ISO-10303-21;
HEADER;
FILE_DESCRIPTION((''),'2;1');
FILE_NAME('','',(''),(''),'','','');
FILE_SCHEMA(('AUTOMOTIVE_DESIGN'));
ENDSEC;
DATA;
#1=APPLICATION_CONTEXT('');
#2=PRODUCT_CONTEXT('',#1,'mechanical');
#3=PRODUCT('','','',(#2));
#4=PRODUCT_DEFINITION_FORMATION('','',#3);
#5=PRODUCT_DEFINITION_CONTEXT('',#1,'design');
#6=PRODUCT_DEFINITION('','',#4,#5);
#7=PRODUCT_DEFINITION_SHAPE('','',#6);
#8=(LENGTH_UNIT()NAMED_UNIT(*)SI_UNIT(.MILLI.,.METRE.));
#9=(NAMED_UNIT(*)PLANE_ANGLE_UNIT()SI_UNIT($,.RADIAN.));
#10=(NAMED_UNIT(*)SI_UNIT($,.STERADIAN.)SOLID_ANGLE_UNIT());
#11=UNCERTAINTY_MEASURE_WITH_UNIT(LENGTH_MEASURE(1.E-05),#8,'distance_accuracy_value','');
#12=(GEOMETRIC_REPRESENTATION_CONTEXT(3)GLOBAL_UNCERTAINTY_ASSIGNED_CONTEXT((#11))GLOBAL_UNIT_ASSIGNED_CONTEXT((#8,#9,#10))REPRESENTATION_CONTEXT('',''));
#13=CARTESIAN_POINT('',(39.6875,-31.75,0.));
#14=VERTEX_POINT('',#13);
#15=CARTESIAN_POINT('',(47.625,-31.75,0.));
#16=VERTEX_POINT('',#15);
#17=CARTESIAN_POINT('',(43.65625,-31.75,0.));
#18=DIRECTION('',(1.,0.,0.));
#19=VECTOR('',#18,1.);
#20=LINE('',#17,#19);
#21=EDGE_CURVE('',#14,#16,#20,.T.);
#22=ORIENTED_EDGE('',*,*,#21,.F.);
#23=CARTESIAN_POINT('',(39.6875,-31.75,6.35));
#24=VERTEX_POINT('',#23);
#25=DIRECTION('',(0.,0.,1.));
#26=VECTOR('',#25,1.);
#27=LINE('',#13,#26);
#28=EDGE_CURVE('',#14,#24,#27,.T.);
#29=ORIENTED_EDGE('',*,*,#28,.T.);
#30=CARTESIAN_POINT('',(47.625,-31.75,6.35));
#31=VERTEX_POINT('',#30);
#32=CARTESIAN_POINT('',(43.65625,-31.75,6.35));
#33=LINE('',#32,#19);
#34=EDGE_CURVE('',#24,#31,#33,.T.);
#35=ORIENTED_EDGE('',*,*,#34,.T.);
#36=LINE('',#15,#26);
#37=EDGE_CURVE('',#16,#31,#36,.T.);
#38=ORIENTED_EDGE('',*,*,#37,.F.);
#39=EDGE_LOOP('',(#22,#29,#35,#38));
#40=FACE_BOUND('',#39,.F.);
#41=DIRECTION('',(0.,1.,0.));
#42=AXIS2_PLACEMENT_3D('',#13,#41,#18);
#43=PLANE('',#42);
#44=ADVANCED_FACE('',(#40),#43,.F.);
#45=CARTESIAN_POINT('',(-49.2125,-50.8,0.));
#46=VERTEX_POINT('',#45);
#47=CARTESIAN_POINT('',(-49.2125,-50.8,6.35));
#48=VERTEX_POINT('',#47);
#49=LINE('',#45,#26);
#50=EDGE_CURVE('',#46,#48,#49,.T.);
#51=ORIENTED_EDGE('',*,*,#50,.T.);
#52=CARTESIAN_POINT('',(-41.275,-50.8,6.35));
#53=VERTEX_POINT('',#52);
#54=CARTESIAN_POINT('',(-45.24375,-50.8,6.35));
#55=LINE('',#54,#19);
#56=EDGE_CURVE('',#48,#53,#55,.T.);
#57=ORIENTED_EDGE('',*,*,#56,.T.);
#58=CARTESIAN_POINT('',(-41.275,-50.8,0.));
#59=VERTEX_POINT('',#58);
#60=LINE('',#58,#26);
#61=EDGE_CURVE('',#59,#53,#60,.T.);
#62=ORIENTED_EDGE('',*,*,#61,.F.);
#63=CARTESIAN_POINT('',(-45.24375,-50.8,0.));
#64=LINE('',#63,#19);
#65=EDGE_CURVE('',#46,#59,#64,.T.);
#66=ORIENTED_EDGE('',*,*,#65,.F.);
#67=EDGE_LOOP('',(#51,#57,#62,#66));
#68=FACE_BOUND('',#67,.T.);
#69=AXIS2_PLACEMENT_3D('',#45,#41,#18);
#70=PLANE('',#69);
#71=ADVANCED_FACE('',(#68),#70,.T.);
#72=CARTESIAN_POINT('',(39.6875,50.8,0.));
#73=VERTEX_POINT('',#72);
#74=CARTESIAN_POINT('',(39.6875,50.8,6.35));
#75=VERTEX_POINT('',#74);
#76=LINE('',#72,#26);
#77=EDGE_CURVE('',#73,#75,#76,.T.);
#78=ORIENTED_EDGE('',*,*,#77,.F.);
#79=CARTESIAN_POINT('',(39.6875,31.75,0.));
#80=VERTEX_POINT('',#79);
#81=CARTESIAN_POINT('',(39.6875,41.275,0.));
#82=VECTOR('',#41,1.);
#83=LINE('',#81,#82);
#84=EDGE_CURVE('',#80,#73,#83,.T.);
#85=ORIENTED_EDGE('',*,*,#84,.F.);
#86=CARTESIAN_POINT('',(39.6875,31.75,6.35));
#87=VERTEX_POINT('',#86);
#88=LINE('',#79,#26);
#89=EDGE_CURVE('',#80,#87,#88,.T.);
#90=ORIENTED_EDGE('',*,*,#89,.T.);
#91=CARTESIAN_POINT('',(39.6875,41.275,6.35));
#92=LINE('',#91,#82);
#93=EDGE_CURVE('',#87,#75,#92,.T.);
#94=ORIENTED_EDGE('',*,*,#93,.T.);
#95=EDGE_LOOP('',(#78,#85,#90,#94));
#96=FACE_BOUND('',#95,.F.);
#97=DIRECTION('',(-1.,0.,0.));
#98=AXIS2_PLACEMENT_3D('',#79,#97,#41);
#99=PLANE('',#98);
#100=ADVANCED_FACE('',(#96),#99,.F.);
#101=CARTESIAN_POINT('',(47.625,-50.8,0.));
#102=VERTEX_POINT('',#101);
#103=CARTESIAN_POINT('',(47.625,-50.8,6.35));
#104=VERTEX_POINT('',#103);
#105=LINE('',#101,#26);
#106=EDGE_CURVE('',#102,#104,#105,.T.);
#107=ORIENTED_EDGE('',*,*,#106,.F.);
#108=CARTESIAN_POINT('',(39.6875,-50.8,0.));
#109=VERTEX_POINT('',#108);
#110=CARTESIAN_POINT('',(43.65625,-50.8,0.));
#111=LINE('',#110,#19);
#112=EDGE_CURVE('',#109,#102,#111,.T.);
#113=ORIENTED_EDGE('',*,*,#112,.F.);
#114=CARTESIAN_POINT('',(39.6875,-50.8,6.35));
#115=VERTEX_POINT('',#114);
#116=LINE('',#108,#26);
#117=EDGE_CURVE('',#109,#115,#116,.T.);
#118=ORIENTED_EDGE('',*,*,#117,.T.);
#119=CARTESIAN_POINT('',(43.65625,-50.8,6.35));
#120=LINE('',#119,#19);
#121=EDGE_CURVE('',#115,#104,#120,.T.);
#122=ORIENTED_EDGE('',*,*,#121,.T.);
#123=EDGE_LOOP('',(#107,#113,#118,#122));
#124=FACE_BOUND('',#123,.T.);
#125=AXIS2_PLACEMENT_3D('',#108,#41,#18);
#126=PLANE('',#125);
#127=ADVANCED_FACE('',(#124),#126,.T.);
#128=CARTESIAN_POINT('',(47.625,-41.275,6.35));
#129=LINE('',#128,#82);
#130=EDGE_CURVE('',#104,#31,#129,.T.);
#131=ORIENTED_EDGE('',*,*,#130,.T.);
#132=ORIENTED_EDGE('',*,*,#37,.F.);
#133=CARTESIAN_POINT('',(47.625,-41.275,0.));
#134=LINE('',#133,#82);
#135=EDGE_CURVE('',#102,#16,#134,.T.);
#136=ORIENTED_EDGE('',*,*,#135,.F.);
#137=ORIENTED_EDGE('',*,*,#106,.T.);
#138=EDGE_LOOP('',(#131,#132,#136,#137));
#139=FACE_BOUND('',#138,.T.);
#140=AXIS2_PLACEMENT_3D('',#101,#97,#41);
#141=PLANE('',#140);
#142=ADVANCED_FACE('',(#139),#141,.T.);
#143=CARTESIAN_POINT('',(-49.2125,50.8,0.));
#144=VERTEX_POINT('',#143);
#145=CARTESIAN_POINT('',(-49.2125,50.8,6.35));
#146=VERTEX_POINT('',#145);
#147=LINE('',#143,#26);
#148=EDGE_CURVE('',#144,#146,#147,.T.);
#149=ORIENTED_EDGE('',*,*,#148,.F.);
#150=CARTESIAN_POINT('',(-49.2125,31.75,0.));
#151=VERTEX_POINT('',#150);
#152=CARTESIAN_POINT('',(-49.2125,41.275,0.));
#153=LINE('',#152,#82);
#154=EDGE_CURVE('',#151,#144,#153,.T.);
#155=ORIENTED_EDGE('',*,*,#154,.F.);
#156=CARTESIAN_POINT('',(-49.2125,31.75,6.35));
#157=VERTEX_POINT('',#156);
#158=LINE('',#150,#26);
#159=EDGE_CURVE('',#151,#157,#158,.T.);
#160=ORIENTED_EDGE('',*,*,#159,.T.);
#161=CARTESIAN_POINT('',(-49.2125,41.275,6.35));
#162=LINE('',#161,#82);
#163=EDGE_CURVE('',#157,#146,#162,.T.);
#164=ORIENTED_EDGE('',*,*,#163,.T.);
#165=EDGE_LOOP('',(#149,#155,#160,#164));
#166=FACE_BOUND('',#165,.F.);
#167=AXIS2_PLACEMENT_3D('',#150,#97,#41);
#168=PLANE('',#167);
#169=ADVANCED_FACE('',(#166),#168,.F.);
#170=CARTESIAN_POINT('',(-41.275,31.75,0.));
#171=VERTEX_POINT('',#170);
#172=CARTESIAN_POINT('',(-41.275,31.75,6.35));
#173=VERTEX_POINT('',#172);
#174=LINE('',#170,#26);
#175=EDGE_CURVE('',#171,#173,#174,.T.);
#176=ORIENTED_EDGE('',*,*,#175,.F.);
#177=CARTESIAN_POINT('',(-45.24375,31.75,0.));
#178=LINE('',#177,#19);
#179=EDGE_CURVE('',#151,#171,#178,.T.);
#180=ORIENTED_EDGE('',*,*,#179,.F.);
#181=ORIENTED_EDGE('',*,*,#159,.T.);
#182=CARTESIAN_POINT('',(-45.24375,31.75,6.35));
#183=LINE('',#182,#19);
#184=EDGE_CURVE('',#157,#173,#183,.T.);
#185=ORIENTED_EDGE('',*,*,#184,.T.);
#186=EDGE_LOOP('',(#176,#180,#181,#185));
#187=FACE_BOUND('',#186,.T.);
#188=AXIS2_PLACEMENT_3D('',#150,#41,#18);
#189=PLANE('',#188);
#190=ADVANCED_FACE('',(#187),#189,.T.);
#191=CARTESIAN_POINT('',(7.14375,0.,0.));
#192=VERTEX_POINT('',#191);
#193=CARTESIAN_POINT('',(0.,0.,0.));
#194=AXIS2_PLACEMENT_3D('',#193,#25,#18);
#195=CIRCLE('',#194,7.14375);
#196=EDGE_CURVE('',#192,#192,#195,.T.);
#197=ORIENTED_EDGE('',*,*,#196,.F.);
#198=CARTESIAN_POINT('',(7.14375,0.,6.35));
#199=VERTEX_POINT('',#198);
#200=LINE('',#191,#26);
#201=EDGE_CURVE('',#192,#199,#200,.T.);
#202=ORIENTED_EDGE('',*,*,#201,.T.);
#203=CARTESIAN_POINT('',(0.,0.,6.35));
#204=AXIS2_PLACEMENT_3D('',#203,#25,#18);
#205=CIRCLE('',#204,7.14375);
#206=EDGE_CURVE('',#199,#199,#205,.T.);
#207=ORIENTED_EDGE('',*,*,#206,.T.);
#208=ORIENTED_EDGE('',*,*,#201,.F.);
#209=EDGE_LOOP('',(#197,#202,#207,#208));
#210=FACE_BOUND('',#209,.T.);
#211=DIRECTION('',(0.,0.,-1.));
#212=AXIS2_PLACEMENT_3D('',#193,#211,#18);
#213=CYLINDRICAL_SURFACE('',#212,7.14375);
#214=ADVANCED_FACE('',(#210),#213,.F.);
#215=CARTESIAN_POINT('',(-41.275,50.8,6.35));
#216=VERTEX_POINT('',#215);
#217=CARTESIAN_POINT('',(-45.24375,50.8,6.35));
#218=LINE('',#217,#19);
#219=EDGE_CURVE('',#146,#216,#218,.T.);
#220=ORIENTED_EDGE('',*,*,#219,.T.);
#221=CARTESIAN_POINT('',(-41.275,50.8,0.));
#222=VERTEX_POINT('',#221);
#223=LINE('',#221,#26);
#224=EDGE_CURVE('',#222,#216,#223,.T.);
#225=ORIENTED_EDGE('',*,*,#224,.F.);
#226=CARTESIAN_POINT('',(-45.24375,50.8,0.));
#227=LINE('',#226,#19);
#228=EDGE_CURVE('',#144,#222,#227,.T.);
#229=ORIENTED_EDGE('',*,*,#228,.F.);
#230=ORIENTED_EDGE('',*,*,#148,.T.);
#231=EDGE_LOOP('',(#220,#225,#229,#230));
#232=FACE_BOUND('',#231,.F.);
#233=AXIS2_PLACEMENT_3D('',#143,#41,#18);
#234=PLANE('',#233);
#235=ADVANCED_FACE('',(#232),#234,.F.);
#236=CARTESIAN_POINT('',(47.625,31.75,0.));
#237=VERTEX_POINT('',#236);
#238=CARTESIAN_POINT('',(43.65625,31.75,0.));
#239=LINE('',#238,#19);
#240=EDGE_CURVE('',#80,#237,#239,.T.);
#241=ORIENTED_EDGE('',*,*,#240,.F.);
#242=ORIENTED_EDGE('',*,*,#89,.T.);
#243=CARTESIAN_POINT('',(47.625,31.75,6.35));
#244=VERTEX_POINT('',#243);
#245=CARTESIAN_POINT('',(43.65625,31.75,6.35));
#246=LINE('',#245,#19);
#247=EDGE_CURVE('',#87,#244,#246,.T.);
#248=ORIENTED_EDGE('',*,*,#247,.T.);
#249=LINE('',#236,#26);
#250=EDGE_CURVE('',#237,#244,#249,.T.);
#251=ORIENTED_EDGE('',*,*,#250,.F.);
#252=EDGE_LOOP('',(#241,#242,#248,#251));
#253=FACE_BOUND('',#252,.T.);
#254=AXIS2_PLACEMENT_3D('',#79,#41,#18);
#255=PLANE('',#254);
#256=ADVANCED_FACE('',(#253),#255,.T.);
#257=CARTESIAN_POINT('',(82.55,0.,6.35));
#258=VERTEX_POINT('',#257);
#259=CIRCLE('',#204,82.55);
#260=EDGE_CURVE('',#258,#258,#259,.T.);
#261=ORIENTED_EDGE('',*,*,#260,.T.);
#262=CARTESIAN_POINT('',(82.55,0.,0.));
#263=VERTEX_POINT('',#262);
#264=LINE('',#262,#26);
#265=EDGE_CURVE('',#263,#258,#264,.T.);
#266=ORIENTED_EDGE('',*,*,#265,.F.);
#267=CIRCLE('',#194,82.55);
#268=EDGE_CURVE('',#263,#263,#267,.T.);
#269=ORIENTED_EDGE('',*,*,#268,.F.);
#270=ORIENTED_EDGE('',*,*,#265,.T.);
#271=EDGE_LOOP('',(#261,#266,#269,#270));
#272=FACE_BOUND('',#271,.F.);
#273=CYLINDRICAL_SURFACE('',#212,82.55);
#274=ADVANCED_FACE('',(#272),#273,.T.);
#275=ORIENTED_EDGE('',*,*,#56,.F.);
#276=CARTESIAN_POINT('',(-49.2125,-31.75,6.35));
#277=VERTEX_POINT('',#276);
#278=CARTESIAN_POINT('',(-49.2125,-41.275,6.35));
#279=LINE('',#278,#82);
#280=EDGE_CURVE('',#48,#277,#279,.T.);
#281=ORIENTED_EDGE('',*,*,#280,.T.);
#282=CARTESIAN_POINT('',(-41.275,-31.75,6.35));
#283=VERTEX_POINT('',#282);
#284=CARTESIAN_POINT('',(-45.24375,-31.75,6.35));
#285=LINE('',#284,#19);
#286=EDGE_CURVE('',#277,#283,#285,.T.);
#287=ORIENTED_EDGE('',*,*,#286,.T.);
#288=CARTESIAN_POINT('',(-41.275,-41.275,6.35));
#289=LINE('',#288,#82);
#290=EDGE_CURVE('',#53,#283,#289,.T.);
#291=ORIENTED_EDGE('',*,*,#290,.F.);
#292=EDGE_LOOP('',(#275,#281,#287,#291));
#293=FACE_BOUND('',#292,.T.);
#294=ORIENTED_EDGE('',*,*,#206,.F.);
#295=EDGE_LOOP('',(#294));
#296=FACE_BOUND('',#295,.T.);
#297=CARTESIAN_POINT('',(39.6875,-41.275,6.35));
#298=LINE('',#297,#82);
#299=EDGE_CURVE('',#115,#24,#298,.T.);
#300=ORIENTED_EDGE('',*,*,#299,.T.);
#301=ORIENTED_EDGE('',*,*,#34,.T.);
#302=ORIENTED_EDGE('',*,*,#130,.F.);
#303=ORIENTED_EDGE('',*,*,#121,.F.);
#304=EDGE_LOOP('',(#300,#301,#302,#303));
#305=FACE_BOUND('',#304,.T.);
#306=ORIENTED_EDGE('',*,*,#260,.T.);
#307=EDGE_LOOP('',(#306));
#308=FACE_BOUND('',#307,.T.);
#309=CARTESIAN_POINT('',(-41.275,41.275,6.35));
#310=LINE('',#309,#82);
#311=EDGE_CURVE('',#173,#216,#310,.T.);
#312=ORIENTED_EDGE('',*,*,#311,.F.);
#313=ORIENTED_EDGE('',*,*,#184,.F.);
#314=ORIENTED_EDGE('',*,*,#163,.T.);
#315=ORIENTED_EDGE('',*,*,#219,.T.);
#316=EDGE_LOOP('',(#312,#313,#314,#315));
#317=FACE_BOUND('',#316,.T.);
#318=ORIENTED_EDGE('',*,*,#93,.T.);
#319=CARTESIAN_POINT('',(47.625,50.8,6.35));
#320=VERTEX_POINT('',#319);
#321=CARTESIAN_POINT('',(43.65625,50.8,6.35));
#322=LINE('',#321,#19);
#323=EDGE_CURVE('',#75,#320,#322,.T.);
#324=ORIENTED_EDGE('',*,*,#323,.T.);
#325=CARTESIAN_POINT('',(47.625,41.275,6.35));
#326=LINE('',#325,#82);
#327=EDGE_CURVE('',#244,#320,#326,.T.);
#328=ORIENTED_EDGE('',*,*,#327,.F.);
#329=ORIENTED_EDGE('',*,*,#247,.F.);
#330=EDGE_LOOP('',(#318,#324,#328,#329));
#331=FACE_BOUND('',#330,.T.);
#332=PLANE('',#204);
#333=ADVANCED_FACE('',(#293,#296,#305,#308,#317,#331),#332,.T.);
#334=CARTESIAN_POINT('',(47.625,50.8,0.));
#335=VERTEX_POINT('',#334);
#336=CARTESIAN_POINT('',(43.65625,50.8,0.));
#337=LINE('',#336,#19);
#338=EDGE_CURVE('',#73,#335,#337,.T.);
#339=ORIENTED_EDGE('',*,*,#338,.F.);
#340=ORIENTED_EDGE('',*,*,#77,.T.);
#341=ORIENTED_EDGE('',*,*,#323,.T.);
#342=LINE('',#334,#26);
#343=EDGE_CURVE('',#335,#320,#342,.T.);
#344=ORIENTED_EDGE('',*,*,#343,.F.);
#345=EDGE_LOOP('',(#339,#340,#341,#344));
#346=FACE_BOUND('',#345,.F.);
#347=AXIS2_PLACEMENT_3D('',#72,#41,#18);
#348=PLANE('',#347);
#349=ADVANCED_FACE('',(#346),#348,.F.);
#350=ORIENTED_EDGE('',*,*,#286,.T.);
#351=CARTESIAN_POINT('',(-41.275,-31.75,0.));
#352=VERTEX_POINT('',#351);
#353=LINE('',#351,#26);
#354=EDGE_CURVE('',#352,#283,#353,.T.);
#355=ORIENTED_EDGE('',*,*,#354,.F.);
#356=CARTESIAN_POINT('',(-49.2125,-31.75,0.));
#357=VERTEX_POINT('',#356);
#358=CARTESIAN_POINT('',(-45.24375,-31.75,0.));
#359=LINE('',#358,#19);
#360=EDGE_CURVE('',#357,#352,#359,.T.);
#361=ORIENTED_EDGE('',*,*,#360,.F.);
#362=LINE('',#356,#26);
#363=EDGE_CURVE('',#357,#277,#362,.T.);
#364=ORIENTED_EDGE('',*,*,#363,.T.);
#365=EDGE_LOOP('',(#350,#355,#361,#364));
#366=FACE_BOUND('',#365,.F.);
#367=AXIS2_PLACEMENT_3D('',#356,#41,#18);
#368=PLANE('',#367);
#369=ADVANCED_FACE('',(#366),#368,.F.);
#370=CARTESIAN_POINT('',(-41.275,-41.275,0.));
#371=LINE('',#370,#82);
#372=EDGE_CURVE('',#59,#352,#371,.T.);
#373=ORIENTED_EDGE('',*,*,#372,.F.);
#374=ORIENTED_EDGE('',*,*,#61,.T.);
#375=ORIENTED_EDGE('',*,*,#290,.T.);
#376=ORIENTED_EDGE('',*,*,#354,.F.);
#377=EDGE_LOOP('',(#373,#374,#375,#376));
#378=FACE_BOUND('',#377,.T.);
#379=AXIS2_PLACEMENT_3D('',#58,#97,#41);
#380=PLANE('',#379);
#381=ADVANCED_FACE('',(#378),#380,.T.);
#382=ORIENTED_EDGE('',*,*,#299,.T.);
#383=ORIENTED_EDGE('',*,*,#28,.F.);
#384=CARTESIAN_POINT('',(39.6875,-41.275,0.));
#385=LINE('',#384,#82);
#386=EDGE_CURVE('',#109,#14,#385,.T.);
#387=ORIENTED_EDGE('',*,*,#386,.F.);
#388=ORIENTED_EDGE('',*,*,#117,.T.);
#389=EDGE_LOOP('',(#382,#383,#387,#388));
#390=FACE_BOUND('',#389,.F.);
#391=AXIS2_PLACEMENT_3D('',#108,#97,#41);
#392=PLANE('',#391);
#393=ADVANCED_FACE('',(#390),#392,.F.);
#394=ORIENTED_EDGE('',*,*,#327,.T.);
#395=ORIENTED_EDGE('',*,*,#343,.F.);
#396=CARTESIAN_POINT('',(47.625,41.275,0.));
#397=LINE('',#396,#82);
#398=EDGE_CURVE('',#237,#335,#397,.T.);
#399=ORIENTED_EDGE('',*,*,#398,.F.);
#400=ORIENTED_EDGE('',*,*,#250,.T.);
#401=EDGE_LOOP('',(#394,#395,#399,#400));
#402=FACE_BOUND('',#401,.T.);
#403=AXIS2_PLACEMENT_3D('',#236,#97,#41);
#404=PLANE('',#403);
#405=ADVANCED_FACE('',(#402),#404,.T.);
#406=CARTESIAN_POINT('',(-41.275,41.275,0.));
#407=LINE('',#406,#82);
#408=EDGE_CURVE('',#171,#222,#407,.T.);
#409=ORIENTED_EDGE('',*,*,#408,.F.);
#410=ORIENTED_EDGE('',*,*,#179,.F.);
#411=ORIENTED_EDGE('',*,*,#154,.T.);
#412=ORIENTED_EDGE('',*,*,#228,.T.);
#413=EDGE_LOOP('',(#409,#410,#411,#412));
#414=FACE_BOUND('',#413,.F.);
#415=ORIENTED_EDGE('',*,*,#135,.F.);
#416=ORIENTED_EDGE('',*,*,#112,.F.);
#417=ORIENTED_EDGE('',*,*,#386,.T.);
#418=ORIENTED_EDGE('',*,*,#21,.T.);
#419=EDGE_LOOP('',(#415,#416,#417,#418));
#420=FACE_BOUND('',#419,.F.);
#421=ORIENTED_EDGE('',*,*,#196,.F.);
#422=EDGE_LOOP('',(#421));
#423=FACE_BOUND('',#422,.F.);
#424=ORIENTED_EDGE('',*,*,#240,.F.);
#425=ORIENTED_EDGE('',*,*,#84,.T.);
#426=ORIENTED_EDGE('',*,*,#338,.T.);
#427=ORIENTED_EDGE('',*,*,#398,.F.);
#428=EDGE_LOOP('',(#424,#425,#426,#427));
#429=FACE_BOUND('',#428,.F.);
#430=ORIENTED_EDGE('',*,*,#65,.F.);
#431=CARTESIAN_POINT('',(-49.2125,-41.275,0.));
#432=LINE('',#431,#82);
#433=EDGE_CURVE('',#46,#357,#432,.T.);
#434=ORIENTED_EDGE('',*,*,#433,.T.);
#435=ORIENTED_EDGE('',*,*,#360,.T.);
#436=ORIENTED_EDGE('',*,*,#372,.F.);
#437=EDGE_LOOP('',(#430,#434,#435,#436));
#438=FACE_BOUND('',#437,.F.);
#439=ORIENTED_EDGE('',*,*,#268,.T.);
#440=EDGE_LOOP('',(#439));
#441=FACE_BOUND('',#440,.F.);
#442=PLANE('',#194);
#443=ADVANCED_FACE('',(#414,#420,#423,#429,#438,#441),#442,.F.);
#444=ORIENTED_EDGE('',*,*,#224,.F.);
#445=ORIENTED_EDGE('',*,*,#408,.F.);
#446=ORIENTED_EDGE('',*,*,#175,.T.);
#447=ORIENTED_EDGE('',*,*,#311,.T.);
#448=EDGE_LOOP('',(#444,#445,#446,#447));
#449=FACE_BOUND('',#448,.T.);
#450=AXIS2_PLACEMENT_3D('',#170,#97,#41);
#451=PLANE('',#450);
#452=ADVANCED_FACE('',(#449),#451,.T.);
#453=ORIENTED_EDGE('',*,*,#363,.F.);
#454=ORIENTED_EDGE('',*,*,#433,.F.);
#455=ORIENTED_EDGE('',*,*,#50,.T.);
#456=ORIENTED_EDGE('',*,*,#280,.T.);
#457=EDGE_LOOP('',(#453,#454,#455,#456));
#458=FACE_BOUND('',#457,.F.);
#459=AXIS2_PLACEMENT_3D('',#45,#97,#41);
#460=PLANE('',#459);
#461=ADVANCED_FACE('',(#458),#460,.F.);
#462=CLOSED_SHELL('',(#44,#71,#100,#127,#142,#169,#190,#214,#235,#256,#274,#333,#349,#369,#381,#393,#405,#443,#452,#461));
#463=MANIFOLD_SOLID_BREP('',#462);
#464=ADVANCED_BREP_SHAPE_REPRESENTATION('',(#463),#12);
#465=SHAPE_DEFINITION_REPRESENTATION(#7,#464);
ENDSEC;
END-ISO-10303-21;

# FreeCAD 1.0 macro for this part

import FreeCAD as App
import Part
import Sketcher
from FreeCAD import Vector
Q = App.Units.Quantity

doc = App.newDocument("Part")
body = doc.addObject("PartDesign::Body", "Body")

# Sketch on XY plane
sketch1 = body.newObject("Sketcher::SketchObject", "Sketch")
sketch1.AttachmentSupport = (doc.getObject("XY_Plane"), [""])
sketch1.MapMode = "FlatFace"
sketch1.addGeometry([
    Part.Circle(Vector(0, 0, 0), Vector(0, 0, 1), 83),  # 0
    Part.LineSegment(Vector(-41, -51, 0), Vector(-49, -51, 0)),  # 1
    Part.LineSegment(Vector(-49, -51, 0), Vector(-49, -32, 0)),  # 2
    Part.LineSegment(Vector(-49, -32, 0), Vector(-41, -32, 0)),  # 3
    Part.LineSegment(Vector(-41, -32, 0), Vector(-41, -51, 0)),  # 4
    Part.LineSegment(Vector(48, -51, 0), Vector(40, -51, 0)),  # 5
    Part.LineSegment(Vector(40, -51, 0), Vector(40, -32, 0)),  # 6
    Part.LineSegment(Vector(40, -32, 0), Vector(48, -32, 0)),  # 7
    Part.LineSegment(Vector(48, -32, 0), Vector(48, -51, 0)),  # 8
    Part.Circle(Vector(0, 0, 0), Vector(0, 0, 1), 7),  # 9
    Part.LineSegment(Vector(-41, 32, 0), Vector(-49, 32, 0)),  # 10
    Part.LineSegment(Vector(-49, 32, 0), Vector(-49, 51, 0)),  # 11
    Part.LineSegment(Vector(-49, 51, 0), Vector(-41, 51, 0)),  # 12
    Part.LineSegment(Vector(-41, 51, 0), Vector(-41, 32, 0)),  # 13
    Part.LineSegment(Vector(48, 32, 0), Vector(40, 32, 0)),  # 14
    Part.LineSegment(Vector(40, 32, 0), Vector(40, 51, 0)),  # 15
    Part.LineSegment(Vector(40, 51, 0), Vector(48, 51, 0)),  # 16
    Part.LineSegment(Vector(48, 51, 0), Vector(48, 32, 0)),  # 17
], False)
sketch1.addConstraint([
    Sketcher.Constraint("Coincident", 1, 2, 2, 1),
    Sketcher.Constraint("Coincident", 2, 2, 3, 1),
    Sketcher.Constraint("Coincident", 3, 2, 4, 1),
    Sketcher.Constraint("Coincident", 4, 2, 1, 1),
    Sketcher.Constraint("Coincident", 5, 2, 6, 1),
    Sketcher.Constraint("Coincident", 6, 2, 7, 1),
    Sketcher.Constraint("Coincident", 7, 2, 8, 1),
    Sketcher.Constraint("Coincident", 8, 2, 5, 1),
    Sketcher.Constraint("Coincident", 10, 2, 11, 1),
    Sketcher.Constraint("Coincident", 11, 2, 12, 1),
    Sketcher.Constraint("Coincident", 12, 2, 13, 1),
    Sketcher.Constraint("Coincident", 13, 2, 10, 1),
    Sketcher.Constraint("Coincident", 14, 2, 15, 1),
    Sketcher.Constraint("Coincident", 15, 2, 16, 1),
    Sketcher.Constraint("Coincident", 16, 2, 17, 1),
    Sketcher.Constraint("Coincident", 17, 2, 14, 1),
    Sketcher.Constraint("Horizontal", 1),
    Sketcher.Constraint("Vertical", 2),
    Sketcher.Constraint("Horizontal", 3),
    Sketcher.Constraint("Vertical", 4),
    Sketcher.Constraint("Horizontal", 5),
    Sketcher.Constraint("Vertical", 6),
    Sketcher.Constraint("Horizontal", 7),
    Sketcher.Constraint("Vertical", 8),
    Sketcher.Constraint("Horizontal", 10),
    Sketcher.Constraint("Vertical", 11),
    Sketcher.Constraint("Horizontal", 12),
    Sketcher.Constraint("Vertical", 13),
    Sketcher.Constraint("Horizontal", 14),
    Sketcher.Constraint("Vertical", 15),
    Sketcher.Constraint("Horizontal", 16),
    Sketcher.Constraint("Vertical", 17),
    Sketcher.Constraint("Coincident", 0, 3, -1, 1),
    Sketcher.Constraint("Coincident", 9, 3, -1, 1),
    Sketcher.Constraint("Symmetric", 2, 2, 10, 2, -1),
    Sketcher.Constraint("Symmetric", 4, 2, 12, 2, -1),
    Sketcher.Constraint("Symmetric", 6, 2, 14, 2, -1),
    Sketcher.Constraint("Symmetric", 8, 2, 16, 2, -1),
    Sketcher.Constraint("Horizontal", 4, 2, 5, 2),
    Sketcher.Constraint("Horizontal", 3, 2, 6, 2),
    Sketcher.Constraint("Equal", 3, 5),
    Sketcher.Constraint("Diameter", 0, Q("6.5 in")),
    Sketcher.Constraint("Diameter", 9, Q("0.5625 in")),
    Sketcher.Constraint("DistanceY", 1, 2, -1, 1, Q("2 in")),
    Sketcher.Constraint("DistanceY", 2, 1, 2, 2, Q("0.75 in")),
    Sketcher.Constraint("DistanceX", 1, 2, 5, 2, Q("3.5 in")),
    Sketcher.Constraint("DistanceX", 1, 2, 1, 1, Q("0.3125 in")),
    Sketcher.Constraint("DistanceX", 1, 2, -1, 1, Q("1.9375 in")),
])
pad1 = body.newObject("PartDesign::Pad", "Pad")
pad1.Profile = sketch1
pad1.Length = Q("0.25 in")

doc.recompute()
